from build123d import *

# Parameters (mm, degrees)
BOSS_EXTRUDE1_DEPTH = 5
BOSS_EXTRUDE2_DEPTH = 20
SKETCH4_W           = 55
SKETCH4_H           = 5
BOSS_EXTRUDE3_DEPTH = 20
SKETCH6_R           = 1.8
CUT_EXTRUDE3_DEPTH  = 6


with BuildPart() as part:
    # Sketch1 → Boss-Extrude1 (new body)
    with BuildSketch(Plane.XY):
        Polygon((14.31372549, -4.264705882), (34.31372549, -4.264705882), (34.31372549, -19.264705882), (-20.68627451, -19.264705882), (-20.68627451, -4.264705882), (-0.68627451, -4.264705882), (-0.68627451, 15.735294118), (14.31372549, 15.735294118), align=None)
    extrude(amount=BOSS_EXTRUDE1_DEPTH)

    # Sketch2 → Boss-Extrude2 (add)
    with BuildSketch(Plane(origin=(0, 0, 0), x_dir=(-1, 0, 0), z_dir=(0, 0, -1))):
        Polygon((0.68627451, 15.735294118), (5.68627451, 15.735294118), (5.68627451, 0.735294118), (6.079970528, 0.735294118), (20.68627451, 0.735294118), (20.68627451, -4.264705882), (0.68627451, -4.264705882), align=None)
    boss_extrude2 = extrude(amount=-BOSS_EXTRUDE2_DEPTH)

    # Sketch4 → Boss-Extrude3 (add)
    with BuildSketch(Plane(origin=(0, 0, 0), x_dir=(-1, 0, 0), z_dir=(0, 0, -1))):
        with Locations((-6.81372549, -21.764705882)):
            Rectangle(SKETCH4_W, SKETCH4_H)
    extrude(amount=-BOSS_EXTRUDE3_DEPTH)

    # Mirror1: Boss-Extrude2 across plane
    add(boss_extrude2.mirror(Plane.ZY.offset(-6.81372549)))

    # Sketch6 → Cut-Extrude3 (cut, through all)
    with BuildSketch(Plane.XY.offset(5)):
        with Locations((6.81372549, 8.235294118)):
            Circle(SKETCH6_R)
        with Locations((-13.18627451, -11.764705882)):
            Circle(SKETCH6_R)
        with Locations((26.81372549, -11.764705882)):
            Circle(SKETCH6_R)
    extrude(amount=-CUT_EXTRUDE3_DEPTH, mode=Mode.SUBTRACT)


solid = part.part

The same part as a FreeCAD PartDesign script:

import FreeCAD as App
import Part
import Sketcher

V = App.Vector

doc = App.newDocument("Part")
body = doc.addObject("PartDesign::Body", "Body")

# Sketch on XY plane
sketch1 = doc.addObject("Sketcher::SketchObject", "Sketch")
body.addObject(sketch1)
sketch1.AttachmentSupport = (doc.XY_Plane, [""])
sketch1.MapMode = "FlatFace"
sketch1.addGeometry([
    Part.LineSegment(V(34.313725, -4.264706, 0), V(14.313725, -4.264706, 0)),  # 0
    Part.LineSegment(V(14.313725, -4.264706, 0), V(14.313725, 15.735294, 0)),  # 1
    Part.LineSegment(V(14.313725, 15.735294, 0), V(-0.686275, 15.735294, 0)),  # 2
    Part.LineSegment(V(-0.686275, 15.735294, 0), V(-0.686275, -4.264706, 0)),  # 3
    Part.LineSegment(V(-0.686275, -4.264706, 0), V(-20.686275, -4.264706, 0)),  # 4
    Part.LineSegment(V(-20.686275, -4.264706, 0), V(-20.686275, -19.264706, 0)),  # 5
    Part.LineSegment(V(-20.686275, -19.264706, 0), V(34.313725, -19.264706, 0)),  # 6
    Part.LineSegment(V(34.313725, -19.264706, 0), V(34.313725, -4.264706, 0)),  # 7
], False)
sketch1.addConstraint([
    Sketcher.Constraint("Coincident", 0, 2, 1, 1),
    Sketcher.Constraint("Coincident", 1, 2, 2, 1),
    Sketcher.Constraint("Coincident", 2, 2, 3, 1),
    Sketcher.Constraint("Coincident", 3, 2, 4, 1),
    Sketcher.Constraint("Coincident", 4, 2, 5, 1),
    Sketcher.Constraint("Coincident", 5, 2, 6, 1),
    Sketcher.Constraint("Coincident", 6, 2, 7, 1),
    Sketcher.Constraint("Coincident", 7, 2, 0, 1),
    Sketcher.Constraint("Horizontal", 0),
    Sketcher.Constraint("Vertical", 1),
    Sketcher.Constraint("Horizontal", 2),
    Sketcher.Constraint("Vertical", 3),
    Sketcher.Constraint("Horizontal", 4),
    Sketcher.Constraint("Vertical", 5),
    Sketcher.Constraint("Horizontal", 6),
    Sketcher.Constraint("Vertical", 7),
    Sketcher.Constraint("Horizontal", 0, 2, 3, 2),
    Sketcher.Constraint("Equal", 0, 4),
    Sketcher.Constraint("Equal", 4, 1),
    Sketcher.Constraint("Equal", 2, 5),
    Sketcher.Constraint("DistanceX", 0, 2, 0, 1, 20.0),
    Sketcher.Constraint("DistanceX", 2, 2, 2, 1, 15.0),
    Sketcher.Constraint("DistanceX", -1, 1, 0, 2, 14.313725),
    Sketcher.Constraint("DistanceY", 0, 2, -1, 1, 4.264706),
])
pad1 = doc.addObject("PartDesign::Pad", "Pad")
body.addObject(pad1)
pad1.Profile = sketch1
pad1.Length = 5

# Sketch on XY plane
sketch2 = doc.addObject("Sketcher::SketchObject", "Sketch001")
body.addObject(sketch2)
sketch2.AttachmentSupport = (doc.XY_Plane, [""])
sketch2.MapMode = "FlatFace"
sketch2.addGeometry([
    Part.LineSegment(V(-5.686275, 15.735294, 0), V(-0.686275, 15.735294, 0)),  # 0
    Part.LineSegment(V(-0.686275, 15.735294, 0), V(-0.686275, -4.264706, 0)),  # 1
    Part.LineSegment(V(-0.686275, -4.264706, 0), V(-20.686275, -4.264706, 0)),  # 2
    Part.LineSegment(V(-20.686275, -4.264706, 0), V(-20.686275, 0.735294, 0)),  # 3
    Part.LineSegment(V(-20.686275, 0.735294, 0), V(-5.686275, 0.735294, 0)),  # 4
    Part.LineSegment(V(-5.686275, 0.735294, 0), V(-5.686275, 15.735294, 0)),  # 5
], False)
sketch2.addConstraint([
    Sketcher.Constraint("Coincident", 0, 2, 1, 1),
    Sketcher.Constraint("Coincident", 1, 2, 2, 1),
    Sketcher.Constraint("Coincident", 2, 2, 3, 1),
    Sketcher.Constraint("Coincident", 3, 2, 4, 1),
    Sketcher.Constraint("Coincident", 4, 2, 5, 1),
    Sketcher.Constraint("Coincident", 5, 2, 0, 1),
    Sketcher.Constraint("Horizontal", 0),
    Sketcher.Constraint("Vertical", 1),
    Sketcher.Constraint("Horizontal", 2),
    Sketcher.Constraint("Vertical", 3),
    Sketcher.Constraint("Horizontal", 4),
    Sketcher.Constraint("Vertical", 5),
    Sketcher.Constraint("Equal", 2, 1),
    Sketcher.Constraint("Equal", 0, 3),
    Sketcher.Constraint("DistanceX", 0, 1, 0, 2, 5.0),
    Sketcher.Constraint("DistanceX", 2, 2, 2, 1, 20.0),
    Sketcher.Constraint("DistanceX", 0, 2, -1, 1, 0.686275),
    Sketcher.Constraint("DistanceY", -1, 1, 0, 2, 15.735294),
])
pad2 = doc.addObject("PartDesign::Pad", "Pad001")
body.addObject(pad2)
pad2.Profile = sketch2
pad2.Length = 20

# Sketch on XY plane
sketch3 = doc.addObject("Sketcher::SketchObject", "Sketch002")
body.addObject(sketch3)
sketch3.AttachmentSupport = (doc.XY_Plane, [""])
sketch3.MapMode = "FlatFace"
sketch3.addGeometry([
    Part.LineSegment(V(34.313725, -19.264706, 0), V(34.313725, -24.264706, 0)),
    Part.LineSegment(V(34.313725, -24.264706, 0), V(-20.686275, -24.264706, 0)),
    Part.LineSegment(V(-20.686275, -24.264706, 0), V(-20.686275, -19.264706, 0)),
    Part.LineSegment(V(-20.686275, -19.264706, 0), V(34.313725, -19.264706, 0)),
], False)
sketch3.addConstraint([
    Sketcher.Constraint("Coincident", 0, 2, 1, 1),
    Sketcher.Constraint("Coincident", 1, 2, 2, 1),
    Sketcher.Constraint("Coincident", 2, 2, 3, 1),
    Sketcher.Constraint("Coincident", 3, 2, 0, 1),
    Sketcher.Constraint("Vertical", 0),
    Sketcher.Constraint("Horizontal", 1),
    Sketcher.Constraint("Vertical", 2),
    Sketcher.Constraint("Horizontal", 3),
    Sketcher.Constraint("DistanceX", 1, 2, 1, 1, 55.0),
    Sketcher.Constraint("DistanceY", 0, 2, 0, 1, 5.0),
    Sketcher.Constraint("DistanceX", -1, 1, 0, 2, 34.313725),
    Sketcher.Constraint("DistanceY", 0, 2, -1, 1, 24.264706),
])
pad3 = doc.addObject("PartDesign::Pad", "Pad002")
body.addObject(pad3)
pad3.Profile = sketch3
pad3.Length = 20
doc.recompute()

datumplane = doc.addObject("PartDesign::Plane", "DatumPlane")
body.addObject(datumplane)
datumplane.AttachmentSupport = (doc.YZ_Plane, [""])
datumplane.MapMode = "FlatFace"
datumplane.AttachmentOffset = App.Placement(V(0, 0, 6.813725), App.Rotation())
mirrored = doc.addObject("PartDesign::Mirrored", "Mirrored")
body.addObject(mirrored)
mirrored.Originals = [pad2]
mirrored.MirrorPlane = (datumplane, [""])
body.Tip = mirrored

# Sketch on XY plane
sketch4 = doc.addObject("Sketcher::SketchObject", "Sketch003")
body.addObject(sketch4)
sketch4.AttachmentSupport = (doc.XY_Plane, [""])
sketch4.MapMode = "FlatFace"
sketch4.AttachmentOffset = App.Placement(V(0, 0, 5), App.Rotation())
sketch4.addGeometry([
    Part.Circle(V(6.813725, 8.235294, 0), V(0, 0, 1), 1.8),
    Part.Circle(V(-13.186275, -11.764706, 0), V(0, 0, 1), 1.8),
    Part.Circle(V(26.813725, -11.764706, 0), V(0, 0, 1), 1.8),
], False)
sketch4.addConstraint([
    Sketcher.Constraint("Equal", 0, 1),
    Sketcher.Constraint("Equal", 1, 2),
    Sketcher.Constraint("Horizontal", 1, 3, 2, 3),
    Sketcher.Constraint("Diameter", 0, 3.6),
    Sketcher.Constraint("DistanceX", 1, 3, 0, 3, 20.0),
    Sketcher.Constraint("DistanceY", 1, 3, 0, 3, 20.0),
    Sketcher.Constraint("DistanceX", 0, 3, 2, 3, 20.0),
    Sketcher.Constraint("DistanceX", -1, 1, 0, 3, 6.813725),
    Sketcher.Constraint("DistanceY", -1, 1, 0, 3, 8.235294),
])
pocket1 = doc.addObject("PartDesign::Pocket", "Pocket")
body.addObject(pocket1)
pocket1.Profile = sketch4
pocket1.Type = "ThroughAll"

doc.recompute()
